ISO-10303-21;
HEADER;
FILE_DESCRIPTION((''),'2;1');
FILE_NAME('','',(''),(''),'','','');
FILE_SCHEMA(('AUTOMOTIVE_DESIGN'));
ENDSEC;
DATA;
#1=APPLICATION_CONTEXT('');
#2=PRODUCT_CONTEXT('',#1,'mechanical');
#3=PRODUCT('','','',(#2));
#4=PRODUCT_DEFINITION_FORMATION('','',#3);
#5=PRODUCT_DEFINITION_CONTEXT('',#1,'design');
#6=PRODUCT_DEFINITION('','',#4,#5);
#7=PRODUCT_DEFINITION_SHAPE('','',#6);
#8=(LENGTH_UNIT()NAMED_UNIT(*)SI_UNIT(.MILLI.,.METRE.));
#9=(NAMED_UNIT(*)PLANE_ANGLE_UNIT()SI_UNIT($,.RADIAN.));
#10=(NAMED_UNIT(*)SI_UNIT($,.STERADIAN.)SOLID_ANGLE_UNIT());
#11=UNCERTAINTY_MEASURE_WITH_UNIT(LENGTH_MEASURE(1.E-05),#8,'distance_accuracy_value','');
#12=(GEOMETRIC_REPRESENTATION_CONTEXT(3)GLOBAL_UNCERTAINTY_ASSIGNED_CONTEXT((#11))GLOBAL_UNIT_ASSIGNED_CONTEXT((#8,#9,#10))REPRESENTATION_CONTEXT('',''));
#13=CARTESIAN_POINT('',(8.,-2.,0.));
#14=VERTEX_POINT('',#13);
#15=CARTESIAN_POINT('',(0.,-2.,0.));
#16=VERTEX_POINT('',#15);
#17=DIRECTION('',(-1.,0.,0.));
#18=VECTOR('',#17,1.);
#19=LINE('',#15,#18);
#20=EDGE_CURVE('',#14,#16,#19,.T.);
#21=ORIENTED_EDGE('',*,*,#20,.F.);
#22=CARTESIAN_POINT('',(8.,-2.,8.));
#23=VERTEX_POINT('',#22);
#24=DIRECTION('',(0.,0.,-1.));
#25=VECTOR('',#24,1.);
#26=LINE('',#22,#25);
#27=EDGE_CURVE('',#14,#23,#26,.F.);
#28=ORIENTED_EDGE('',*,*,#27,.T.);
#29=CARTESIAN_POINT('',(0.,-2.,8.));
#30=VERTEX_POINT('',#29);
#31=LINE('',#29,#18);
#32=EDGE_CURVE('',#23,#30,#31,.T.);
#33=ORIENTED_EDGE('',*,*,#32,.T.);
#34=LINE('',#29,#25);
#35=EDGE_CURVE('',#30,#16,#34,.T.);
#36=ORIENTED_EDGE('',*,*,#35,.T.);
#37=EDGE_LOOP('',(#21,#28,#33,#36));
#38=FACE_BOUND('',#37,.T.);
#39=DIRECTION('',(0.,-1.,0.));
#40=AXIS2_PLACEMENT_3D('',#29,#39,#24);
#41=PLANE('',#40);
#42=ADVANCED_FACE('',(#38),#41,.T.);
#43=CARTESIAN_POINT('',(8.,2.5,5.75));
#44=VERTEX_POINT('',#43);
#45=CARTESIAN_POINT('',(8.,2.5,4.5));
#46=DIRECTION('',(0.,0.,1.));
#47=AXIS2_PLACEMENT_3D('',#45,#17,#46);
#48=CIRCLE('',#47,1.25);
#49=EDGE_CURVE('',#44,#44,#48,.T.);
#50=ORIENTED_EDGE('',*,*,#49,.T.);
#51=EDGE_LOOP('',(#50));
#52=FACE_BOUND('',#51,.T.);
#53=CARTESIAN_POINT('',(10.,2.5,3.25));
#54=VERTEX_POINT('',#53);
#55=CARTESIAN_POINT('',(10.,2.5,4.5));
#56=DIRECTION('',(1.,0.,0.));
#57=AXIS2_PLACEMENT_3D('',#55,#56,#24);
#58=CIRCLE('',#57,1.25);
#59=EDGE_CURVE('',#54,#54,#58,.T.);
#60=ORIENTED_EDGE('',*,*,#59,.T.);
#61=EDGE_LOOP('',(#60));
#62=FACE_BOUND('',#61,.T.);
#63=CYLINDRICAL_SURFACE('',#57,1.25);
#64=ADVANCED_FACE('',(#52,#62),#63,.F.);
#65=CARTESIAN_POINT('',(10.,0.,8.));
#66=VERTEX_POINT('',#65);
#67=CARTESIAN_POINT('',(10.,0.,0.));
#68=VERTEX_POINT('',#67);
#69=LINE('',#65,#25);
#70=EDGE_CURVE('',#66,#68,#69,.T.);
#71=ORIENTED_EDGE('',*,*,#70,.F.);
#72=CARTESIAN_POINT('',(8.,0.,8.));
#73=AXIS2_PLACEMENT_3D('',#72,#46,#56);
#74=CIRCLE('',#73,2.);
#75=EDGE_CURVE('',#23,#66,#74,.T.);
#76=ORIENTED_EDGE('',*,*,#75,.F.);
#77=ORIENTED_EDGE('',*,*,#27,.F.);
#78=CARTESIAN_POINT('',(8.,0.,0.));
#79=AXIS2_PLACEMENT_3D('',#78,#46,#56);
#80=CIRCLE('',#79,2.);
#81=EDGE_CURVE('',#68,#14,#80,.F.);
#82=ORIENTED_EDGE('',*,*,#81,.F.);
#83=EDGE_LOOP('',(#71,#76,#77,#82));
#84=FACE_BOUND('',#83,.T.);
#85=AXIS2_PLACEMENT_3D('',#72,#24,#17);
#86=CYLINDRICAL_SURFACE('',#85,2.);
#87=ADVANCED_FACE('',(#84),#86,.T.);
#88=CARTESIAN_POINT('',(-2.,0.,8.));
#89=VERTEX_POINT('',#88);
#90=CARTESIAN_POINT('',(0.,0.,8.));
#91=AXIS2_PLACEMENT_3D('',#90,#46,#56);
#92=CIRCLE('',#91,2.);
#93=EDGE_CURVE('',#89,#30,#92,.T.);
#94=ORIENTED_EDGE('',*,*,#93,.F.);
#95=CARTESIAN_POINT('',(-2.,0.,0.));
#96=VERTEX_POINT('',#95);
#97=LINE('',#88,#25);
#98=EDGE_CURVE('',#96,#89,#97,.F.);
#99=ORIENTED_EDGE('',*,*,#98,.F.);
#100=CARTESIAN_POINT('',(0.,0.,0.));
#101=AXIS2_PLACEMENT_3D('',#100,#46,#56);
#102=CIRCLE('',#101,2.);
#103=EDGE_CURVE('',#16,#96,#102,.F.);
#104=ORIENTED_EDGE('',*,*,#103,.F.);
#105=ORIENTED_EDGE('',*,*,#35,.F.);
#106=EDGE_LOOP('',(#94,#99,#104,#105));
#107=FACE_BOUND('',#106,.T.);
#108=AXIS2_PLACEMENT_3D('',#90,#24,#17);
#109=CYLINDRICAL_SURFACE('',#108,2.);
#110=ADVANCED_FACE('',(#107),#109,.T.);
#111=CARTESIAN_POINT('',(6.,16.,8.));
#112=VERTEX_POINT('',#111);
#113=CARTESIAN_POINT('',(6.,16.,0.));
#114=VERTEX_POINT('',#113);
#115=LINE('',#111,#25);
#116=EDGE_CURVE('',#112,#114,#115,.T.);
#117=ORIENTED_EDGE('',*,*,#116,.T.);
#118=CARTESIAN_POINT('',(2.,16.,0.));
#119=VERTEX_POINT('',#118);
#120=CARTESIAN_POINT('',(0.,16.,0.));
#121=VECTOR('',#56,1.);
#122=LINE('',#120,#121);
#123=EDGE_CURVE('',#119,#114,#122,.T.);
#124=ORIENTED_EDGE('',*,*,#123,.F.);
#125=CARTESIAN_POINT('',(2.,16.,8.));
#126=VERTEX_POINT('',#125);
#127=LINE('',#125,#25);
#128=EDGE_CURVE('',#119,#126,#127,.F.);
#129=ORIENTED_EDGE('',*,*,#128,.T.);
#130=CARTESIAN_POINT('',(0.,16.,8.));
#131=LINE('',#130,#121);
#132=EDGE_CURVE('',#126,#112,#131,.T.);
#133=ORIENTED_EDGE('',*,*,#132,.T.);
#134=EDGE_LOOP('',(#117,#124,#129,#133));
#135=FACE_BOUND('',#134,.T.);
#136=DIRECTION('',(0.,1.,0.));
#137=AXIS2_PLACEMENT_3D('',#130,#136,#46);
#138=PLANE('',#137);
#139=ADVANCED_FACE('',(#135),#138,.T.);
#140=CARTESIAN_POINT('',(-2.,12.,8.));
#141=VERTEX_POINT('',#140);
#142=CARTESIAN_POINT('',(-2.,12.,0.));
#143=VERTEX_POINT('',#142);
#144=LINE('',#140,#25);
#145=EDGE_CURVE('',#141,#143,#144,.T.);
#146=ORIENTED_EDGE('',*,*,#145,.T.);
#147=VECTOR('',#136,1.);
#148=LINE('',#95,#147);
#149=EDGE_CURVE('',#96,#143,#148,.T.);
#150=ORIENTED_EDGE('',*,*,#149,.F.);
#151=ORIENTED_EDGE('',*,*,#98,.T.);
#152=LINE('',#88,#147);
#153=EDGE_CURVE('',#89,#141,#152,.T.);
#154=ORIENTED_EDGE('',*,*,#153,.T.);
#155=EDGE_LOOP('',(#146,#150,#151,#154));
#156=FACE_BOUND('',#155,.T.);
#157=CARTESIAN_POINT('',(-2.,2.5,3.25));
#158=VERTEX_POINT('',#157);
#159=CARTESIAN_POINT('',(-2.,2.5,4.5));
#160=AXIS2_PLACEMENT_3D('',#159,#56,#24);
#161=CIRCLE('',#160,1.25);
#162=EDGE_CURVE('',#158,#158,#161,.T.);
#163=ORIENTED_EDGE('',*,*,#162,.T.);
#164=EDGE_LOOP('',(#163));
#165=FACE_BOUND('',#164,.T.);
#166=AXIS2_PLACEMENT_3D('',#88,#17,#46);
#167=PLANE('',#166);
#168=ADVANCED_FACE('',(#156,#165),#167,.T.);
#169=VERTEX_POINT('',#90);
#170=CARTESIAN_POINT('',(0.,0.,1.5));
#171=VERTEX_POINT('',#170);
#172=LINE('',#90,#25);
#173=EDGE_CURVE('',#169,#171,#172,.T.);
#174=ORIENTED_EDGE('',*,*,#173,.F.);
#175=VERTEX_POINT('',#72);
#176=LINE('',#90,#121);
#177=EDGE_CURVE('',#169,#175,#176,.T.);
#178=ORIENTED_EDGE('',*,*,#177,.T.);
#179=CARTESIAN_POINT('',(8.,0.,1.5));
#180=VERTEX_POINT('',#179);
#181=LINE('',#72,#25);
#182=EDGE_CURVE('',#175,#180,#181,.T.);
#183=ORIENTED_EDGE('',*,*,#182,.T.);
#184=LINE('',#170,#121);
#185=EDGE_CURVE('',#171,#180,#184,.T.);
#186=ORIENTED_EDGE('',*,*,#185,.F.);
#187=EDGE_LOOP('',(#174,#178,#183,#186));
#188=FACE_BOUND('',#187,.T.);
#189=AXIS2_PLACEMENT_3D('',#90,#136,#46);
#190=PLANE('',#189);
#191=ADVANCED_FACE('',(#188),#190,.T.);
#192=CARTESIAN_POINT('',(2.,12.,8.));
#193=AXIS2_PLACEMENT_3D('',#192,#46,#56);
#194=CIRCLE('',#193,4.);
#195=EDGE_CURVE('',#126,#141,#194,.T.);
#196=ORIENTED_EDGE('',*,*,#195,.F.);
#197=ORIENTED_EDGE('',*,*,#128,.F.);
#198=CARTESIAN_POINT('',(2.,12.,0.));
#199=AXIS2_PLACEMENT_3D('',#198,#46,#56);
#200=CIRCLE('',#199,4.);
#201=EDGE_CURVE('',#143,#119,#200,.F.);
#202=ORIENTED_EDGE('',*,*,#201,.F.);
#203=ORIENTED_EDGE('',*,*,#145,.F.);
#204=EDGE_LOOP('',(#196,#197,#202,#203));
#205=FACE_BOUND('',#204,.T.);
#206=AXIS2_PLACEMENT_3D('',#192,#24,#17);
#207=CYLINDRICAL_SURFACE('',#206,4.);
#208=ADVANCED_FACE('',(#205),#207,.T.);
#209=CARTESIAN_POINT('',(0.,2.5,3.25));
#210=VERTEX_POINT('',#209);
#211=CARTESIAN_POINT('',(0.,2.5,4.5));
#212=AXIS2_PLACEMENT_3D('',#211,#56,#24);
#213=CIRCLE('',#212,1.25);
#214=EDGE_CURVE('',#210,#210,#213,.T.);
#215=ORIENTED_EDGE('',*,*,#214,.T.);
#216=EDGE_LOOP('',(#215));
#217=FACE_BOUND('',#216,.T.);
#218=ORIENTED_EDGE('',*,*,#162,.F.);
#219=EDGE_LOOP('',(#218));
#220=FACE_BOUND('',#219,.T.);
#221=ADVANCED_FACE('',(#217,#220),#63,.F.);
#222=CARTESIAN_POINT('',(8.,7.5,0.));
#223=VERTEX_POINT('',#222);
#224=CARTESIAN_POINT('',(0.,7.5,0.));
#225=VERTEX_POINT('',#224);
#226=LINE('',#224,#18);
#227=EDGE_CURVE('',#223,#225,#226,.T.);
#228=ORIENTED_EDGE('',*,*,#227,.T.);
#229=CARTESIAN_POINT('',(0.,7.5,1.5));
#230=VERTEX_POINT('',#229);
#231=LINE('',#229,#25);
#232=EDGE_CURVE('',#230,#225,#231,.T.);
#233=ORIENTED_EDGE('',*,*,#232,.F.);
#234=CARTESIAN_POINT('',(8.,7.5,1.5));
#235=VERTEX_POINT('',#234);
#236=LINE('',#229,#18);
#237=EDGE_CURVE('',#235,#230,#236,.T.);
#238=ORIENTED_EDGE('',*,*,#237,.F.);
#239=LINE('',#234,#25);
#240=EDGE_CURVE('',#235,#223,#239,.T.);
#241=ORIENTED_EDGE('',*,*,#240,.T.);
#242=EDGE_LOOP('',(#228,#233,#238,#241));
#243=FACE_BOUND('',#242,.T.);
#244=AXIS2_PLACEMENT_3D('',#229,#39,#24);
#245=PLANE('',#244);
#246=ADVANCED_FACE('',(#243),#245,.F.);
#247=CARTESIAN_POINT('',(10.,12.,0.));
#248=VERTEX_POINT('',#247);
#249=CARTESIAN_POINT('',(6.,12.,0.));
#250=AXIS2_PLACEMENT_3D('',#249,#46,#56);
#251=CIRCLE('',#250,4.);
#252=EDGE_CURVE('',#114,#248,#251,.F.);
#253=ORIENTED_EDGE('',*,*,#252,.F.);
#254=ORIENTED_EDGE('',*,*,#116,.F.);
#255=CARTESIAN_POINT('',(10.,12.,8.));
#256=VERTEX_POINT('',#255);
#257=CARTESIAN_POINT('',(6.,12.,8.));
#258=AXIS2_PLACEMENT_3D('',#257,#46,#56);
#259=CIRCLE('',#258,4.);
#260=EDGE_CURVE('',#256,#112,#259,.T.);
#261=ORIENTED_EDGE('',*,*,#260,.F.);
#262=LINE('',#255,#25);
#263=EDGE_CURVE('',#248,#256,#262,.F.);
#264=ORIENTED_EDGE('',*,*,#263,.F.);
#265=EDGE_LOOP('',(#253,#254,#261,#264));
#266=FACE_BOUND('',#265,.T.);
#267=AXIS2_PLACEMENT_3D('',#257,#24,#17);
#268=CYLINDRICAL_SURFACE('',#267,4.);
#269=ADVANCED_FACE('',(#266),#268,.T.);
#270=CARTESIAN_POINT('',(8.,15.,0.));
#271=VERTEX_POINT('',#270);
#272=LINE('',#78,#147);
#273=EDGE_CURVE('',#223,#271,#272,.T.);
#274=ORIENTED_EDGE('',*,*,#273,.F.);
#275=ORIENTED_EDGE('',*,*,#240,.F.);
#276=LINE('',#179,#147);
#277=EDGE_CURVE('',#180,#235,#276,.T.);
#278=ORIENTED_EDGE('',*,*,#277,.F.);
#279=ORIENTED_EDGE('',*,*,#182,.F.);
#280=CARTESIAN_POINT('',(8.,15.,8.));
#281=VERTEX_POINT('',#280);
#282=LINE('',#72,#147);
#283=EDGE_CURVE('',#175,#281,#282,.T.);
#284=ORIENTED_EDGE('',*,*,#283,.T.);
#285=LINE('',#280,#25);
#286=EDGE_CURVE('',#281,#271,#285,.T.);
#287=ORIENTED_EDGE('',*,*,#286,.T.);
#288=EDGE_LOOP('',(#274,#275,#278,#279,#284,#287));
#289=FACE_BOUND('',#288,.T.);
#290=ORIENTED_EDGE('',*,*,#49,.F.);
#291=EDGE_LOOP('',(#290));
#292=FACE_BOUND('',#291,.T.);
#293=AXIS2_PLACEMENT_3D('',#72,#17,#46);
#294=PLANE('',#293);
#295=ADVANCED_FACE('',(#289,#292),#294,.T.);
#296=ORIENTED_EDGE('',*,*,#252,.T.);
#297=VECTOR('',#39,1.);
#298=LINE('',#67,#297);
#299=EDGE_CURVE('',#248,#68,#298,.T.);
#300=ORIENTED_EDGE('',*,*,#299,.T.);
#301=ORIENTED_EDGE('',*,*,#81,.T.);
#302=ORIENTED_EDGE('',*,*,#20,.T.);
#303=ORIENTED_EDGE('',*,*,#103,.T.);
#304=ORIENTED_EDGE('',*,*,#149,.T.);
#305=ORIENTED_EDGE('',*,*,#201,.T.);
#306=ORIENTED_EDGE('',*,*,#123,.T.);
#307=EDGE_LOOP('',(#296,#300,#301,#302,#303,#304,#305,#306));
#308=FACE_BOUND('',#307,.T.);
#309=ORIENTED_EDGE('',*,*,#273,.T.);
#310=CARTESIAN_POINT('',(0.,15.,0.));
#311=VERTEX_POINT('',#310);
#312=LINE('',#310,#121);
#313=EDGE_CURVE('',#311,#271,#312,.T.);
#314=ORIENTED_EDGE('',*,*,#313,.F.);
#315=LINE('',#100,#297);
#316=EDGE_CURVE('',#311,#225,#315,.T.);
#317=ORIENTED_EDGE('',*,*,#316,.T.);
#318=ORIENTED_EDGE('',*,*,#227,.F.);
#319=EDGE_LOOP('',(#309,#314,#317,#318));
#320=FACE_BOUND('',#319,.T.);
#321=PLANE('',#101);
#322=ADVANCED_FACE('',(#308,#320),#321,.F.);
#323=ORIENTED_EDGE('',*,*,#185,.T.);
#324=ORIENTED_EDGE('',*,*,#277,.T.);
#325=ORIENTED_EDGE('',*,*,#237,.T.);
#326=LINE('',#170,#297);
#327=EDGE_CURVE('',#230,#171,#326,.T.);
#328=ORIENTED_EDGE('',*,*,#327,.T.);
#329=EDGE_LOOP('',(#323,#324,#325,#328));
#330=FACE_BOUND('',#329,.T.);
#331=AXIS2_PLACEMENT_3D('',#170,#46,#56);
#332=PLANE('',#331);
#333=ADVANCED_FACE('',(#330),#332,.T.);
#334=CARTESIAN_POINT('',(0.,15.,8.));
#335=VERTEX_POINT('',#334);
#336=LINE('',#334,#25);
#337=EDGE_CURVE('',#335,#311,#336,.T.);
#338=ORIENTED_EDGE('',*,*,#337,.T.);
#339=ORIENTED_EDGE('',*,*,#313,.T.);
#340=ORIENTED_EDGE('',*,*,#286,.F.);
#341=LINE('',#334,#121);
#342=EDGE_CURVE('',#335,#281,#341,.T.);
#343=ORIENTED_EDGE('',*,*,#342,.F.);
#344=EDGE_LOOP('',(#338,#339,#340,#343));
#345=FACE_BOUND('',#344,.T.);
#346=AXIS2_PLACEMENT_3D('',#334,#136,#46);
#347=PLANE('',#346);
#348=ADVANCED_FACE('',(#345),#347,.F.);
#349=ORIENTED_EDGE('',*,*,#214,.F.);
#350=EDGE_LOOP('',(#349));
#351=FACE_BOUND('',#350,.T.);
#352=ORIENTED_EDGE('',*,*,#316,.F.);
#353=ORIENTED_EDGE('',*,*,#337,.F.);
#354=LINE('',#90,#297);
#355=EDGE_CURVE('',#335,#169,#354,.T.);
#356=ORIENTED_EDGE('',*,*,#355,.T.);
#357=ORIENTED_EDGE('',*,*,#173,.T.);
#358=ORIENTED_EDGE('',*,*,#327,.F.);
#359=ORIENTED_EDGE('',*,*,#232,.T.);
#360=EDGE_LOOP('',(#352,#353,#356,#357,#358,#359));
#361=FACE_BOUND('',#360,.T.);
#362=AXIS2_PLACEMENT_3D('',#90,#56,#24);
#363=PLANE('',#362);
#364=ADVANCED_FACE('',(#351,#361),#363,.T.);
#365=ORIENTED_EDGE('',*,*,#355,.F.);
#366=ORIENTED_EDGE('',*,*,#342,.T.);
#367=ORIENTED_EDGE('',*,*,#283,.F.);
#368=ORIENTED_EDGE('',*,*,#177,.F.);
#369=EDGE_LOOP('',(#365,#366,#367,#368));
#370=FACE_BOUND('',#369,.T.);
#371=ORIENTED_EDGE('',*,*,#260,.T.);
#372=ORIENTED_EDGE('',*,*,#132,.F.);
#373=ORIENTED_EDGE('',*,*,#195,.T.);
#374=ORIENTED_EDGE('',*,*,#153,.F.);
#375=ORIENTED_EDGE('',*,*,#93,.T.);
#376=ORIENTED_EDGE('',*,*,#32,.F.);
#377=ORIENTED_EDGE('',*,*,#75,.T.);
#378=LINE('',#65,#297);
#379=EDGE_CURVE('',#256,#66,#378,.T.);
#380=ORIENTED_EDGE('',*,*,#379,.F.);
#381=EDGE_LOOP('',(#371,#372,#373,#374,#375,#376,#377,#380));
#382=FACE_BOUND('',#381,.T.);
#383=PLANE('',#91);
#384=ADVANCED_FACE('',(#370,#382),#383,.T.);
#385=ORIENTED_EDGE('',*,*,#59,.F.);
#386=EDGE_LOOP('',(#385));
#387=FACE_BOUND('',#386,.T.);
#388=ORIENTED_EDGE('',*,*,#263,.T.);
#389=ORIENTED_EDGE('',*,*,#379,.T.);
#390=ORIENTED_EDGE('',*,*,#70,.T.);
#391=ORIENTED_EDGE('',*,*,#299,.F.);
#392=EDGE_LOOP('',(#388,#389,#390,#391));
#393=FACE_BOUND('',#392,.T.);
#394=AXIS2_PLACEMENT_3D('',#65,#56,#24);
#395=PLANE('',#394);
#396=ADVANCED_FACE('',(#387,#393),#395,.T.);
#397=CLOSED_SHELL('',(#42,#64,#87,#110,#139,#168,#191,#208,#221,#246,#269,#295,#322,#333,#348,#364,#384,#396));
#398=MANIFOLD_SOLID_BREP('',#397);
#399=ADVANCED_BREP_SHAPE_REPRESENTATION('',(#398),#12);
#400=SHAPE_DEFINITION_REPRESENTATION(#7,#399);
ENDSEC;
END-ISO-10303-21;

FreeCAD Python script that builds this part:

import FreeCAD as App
import Part
import Sketcher

V = App.Vector


def edges_at(feature, points):
    """Names of the edges that pass closest to the given points."""
    edges = feature.Shape.Edges
    near = lambda p: min(range(len(edges)), key=lambda i: edges[i].distToShape(Part.Vertex(*p))[0])
    return sorted({f"Edge{near(p) + 1}" for p in points})

doc = App.newDocument("Part")
body = doc.addObject("PartDesign::Body", "Body")

# Sketch on XY plane
sketch1 = body.newObject("Sketcher::SketchObject", "Sketch")
sketch1.AttachmentSupport = (doc.getObject("XY_Plane"), [""])
sketch1.MapMode = "FlatFace"
sketch1.addGeometry([
    Part.LineSegment(V(-2, 16, 0), V(-2, -2, 0)),  # 0
    Part.LineSegment(V(-2, -2, 0), V(10, -2, 0)),  # 1
    Part.LineSegment(V(10, -2, 0), V(10, 16, 0)),  # 2
    Part.LineSegment(V(10, 16, 0), V(-2, 16, 0)),  # 3
    Part.LineSegment(V(8, 0, 0), V(0, 0, 0)),  # 4
    Part.LineSegment(V(0, 0, 0), V(0, 15, 0)),  # 5
    Part.LineSegment(V(0, 15, 0), V(8, 15, 0)),  # 6
    Part.LineSegment(V(8, 15, 0), V(8, 0, 0)),  # 7
], False)
sketch1.addConstraint([
    Sketcher.Constraint("Coincident", 0, 2, 1, 1),
    Sketcher.Constraint("Coincident", 1, 2, 2, 1),
    Sketcher.Constraint("Coincident", 2, 2, 3, 1),
    Sketcher.Constraint("Coincident", 3, 2, 0, 1),
    Sketcher.Constraint("Coincident", 4, 2, 5, 1),
    Sketcher.Constraint("Coincident", 5, 2, 6, 1),
    Sketcher.Constraint("Coincident", 6, 2, 7, 1),
    Sketcher.Constraint("Coincident", 7, 2, 4, 1),
    Sketcher.Constraint("Vertical", 0),
    Sketcher.Constraint("Horizontal", 1),
    Sketcher.Constraint("Vertical", 2),
    Sketcher.Constraint("Horizontal", 3),
    Sketcher.Constraint("Horizontal", 4),
    Sketcher.Constraint("Vertical", 5),
    Sketcher.Constraint("Horizontal", 6),
    Sketcher.Constraint("Vertical", 7),
    Sketcher.Constraint("Coincident", 4, 2, -1, 1),
    Sketcher.Constraint("DistanceX", 1, 1, 1, 2, 12.0),
    Sketcher.Constraint("DistanceX", 4, 2, 4, 1, 8.0),
    Sketcher.Constraint("DistanceY", 0, 2, 0, 1, 18.0),
    Sketcher.Constraint("DistanceY", 5, 1, 5, 2, 15.0),
    Sketcher.Constraint("DistanceX", 0, 2, -1, 1, 2.0),
    Sketcher.Constraint("DistanceY", 0, 2, -1, 1, 2.0),
])
pad1 = body.newObject("PartDesign::Pad", "Pad")
pad1.Profile = sketch1
pad1.Length = 8

# Sketch on XY plane
sketch2 = body.newObject("Sketcher::SketchObject", "Sketch001")
sketch2.AttachmentSupport = (doc.getObject("XY_Plane"), [""])
sketch2.MapMode = "FlatFace"
sketch2.addGeometry([
    Part.LineSegment(V(0, 8, 0), V(0, 0, 0)),
    Part.LineSegment(V(0, 0, 0), V(8, 0, 0)),
    Part.LineSegment(V(8, 0, 0), V(8, 8, 0)),
    Part.LineSegment(V(8, 8, 0), V(0, 8, 0)),
], False)
sketch2.addConstraint([
    Sketcher.Constraint("Coincident", 0, 2, 1, 1),
    Sketcher.Constraint("Coincident", 1, 2, 2, 1),
    Sketcher.Constraint("Coincident", 2, 2, 3, 1),
    Sketcher.Constraint("Coincident", 3, 2, 0, 1),
    Sketcher.Constraint("Vertical", 0),
    Sketcher.Constraint("Horizontal", 1),
    Sketcher.Constraint("Vertical", 2),
    Sketcher.Constraint("Horizontal", 3),
    Sketcher.Constraint("Coincident", 0, 2, -1, 1),
    Sketcher.Constraint("DistanceX", 1, 1, 1, 2, 8.0),
    Sketcher.Constraint("DistanceY", 0, 2, 0, 1, 7.5),
])
pad2 = body.newObject("PartDesign::Pad", "Pad001")
pad2.Profile = sketch2
pad2.Length = 1.5

# Sketch on YZ plane
sketch3 = body.newObject("Sketcher::SketchObject", "Sketch002")
sketch3.AttachmentSupport = (doc.getObject("YZ_Plane"), [""])
sketch3.MapMode = "FlatFace"
sketch3.AttachmentOffset = App.Placement(V(0, 0, 10), App.Rotation())
sketch3.addGeometry(Part.Circle(V(2.5, 4.5, 0), V(0, 0, 1), 1.2), False)
sketch3.addConstraint([
    Sketcher.Constraint("Diameter", 0, 2.5),
    Sketcher.Constraint("DistanceX", -1, 1, 0, 3, 2.5),
    Sketcher.Constraint("DistanceY", -1, 1, 0, 3, 4.5),
])
doc.recompute()
hole = body.newObject("PartDesign::Hole", "Hole")
hole.Profile = sketch3
hole.ThreadType = "None"
hole.Diameter = 2.5
hole.DepthType = "ThroughAll"
doc.recompute()

fillet = body.newObject("PartDesign::Fillet", "Fillet")
fillet.Base = (hole, edges_at(hole, [(-2, 16, 4), (10, 16, 4)]))
fillet.Radius = 4
doc.recompute()

fillet2 = body.newObject("PartDesign::Fillet", "Fillet001")
fillet2.Base = (fillet, edges_at(fillet, [(10, -2, 4), (-2, -2, 4)]))
fillet2.Radius = 2

doc.recompute()
